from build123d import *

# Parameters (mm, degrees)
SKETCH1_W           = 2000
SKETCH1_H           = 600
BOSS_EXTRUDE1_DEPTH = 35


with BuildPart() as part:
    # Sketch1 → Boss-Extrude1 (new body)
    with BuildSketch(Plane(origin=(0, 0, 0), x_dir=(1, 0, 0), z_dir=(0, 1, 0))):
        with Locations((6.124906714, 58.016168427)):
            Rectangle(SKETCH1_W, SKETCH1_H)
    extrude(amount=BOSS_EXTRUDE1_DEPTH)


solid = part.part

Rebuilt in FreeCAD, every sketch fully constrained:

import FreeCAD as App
import Part
import Sketcher


def add_polygon(sketch, points):
    """Adds a closed chain of lines whose ends are joined by coincident constraints."""
    first, n = sketch.GeometryCount, len(points)
    for a, b in zip(points, points[1:] + points[:1]):
        sketch.addGeometry(Part.LineSegment(App.Vector(*a, 0), App.Vector(*b, 0)), False)
    for i in range(n):
        sketch.addConstraint(Sketcher.Constraint("Coincident", first + i, 2, first + (i + 1) % n, 1))

doc = App.newDocument("Part")
params = doc.addObject("Spreadsheet::Sheet", "Params")
for row, (alias, value) in enumerate([
    ("sketch1_width", "2000 mm"),
    ("sketch1_height", "600 mm"),
    ("pad1_length", "35 mm"),
], start=1):
    params.set(f"A{row}", alias)
    params.set(f"B{row}", "=" + value)
    params.setAlias(f"B{row}", alias)

body = doc.addObject("PartDesign::Body", "Body")

# Sketch on XZ plane
sketch1 = body.newObject("Sketcher::SketchObject", "Sketch")
sketch1.AttachmentSupport = (doc.getObject("XZ_Plane"), [""])
sketch1.MapMode = "FlatFace"
add_polygon(sketch1, [(-994, -358), (-994, 242), (1006, 242), (1006, -358)])  # lines 0-3
sketch1.addConstraint([
    Sketcher.Constraint("Vertical", 0),
    Sketcher.Constraint("Horizontal", 1),
    Sketcher.Constraint("Vertical", 2),
    Sketcher.Constraint("Horizontal", 3),
    Sketcher.Constraint("DistanceX", 1, 1, 1, 2, 2000.0),
    Sketcher.Constraint("DistanceY", 0, 1, 0, 2, 600.0),
    Sketcher.Constraint("DistanceY", -1, 1, 0, 2, 241.983832),
    Sketcher.Constraint("DistanceX", 0, 2, -1, 1, 993.875093),
])
sketch1.setExpression("Constraints[8]", "Params.sketch1_width")
sketch1.setExpression("Constraints[9]", "Params.sketch1_height")
pad1 = body.newObject("PartDesign::Pad", "Pad")
pad1.Profile = sketch1
pad1.setExpression("Length", "Params.pad1_length")
pad1.Reversed = True

doc.recompute()
